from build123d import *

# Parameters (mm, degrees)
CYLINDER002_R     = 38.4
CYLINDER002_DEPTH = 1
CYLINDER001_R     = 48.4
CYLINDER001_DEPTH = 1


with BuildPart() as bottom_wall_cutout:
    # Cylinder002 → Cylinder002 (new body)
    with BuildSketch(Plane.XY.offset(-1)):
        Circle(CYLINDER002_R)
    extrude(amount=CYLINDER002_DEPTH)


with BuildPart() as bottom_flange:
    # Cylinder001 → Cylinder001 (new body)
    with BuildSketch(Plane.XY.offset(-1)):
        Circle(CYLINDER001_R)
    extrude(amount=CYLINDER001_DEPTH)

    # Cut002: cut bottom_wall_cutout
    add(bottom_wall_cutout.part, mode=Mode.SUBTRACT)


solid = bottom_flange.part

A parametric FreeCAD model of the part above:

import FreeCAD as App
import Part
import Sketcher
Q = App.Units.Quantity

doc = App.newDocument("Part")
body = doc.addObject("PartDesign::Body", "Body")

sketch1 = body.newObject("Sketcher::SketchObject", "Sketch")
sketch1.AttachmentSupport = (doc.getObject("XY_Plane"), [""])
sketch1.MapMode = "FlatFace"
sketch1.AttachmentOffset = App.Placement(App.Vector(0, 0, -1), App.Rotation())
sketch1.addGeometry(Part.Circle(App.Vector(0, 0, 0), App.Vector(0, 0, 1), 38), False)
sketch1.addConstraint([
    Sketcher.Constraint("Coincident", 0, 3, -1, 1),
    Sketcher.Constraint("Diameter", 0, Q("76.8 mm")),
])
pad1 = body.newObject("PartDesign::Pad", "Pad")
pad1.Profile = sketch1
pad1.Length = 1
body2 = doc.addObject("PartDesign::Body", "Body001")

sketch2 = body2.newObject("Sketcher::SketchObject", "Sketch001")
sketch2.AttachmentSupport = (doc.getObject("XY_Plane001"), [""])
sketch2.MapMode = "FlatFace"
sketch2.AttachmentOffset = App.Placement(App.Vector(0, 0, -1), App.Rotation())
sketch2.addGeometry(Part.Circle(App.Vector(0, 0, 0), App.Vector(0, 0, 1), 48), False)
sketch2.addConstraint([
    Sketcher.Constraint("Coincident", 0, 3, -1, 1),
    Sketcher.Constraint("Diameter", 0, Q("96.8 mm")),
])
pad2 = body2.newObject("PartDesign::Pad", "Pad001")
pad2.Profile = sketch2
pad2.Length = 1
doc.recompute()

boolean = body2.newObject("PartDesign::Boolean", "Boolean")
boolean.Type = "Cut"
boolean.addObjects([body])

doc.recompute()
